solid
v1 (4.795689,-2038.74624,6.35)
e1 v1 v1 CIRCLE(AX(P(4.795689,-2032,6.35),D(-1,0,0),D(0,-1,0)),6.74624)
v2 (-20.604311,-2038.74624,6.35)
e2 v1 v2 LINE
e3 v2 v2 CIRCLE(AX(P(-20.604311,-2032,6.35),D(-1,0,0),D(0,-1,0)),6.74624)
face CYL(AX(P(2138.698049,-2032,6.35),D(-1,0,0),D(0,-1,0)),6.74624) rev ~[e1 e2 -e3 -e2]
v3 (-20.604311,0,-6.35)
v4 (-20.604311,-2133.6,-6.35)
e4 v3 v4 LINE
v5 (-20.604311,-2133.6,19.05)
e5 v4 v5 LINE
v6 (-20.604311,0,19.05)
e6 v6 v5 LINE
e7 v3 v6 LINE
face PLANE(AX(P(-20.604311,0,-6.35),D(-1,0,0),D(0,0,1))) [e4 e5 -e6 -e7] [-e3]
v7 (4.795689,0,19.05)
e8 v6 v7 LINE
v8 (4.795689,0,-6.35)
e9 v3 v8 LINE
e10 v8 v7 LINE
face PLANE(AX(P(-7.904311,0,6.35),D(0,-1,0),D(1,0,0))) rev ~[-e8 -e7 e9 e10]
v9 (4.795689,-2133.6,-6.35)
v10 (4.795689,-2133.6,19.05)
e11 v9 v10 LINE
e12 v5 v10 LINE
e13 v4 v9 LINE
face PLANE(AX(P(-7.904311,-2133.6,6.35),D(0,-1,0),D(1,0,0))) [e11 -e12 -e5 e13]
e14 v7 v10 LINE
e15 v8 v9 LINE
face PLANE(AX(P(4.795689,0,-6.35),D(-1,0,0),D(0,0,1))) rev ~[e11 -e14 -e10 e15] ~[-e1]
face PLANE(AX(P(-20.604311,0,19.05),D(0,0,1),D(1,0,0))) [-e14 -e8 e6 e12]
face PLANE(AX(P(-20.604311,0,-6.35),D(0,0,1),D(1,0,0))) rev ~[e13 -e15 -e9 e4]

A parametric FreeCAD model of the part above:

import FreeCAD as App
import Part
import Sketcher
from FreeCAD import Vector
Q = App.Units.Quantity


def add_polygon(sketch, points):
    """Adds a closed chain of lines whose ends are joined by coincident constraints."""
    first, n = sketch.GeometryCount, len(points)
    for a, b in zip(points, points[1:] + points[:1]):
        sketch.addGeometry(Part.LineSegment(App.Vector(*a, 0), App.Vector(*b, 0)), False)
    for i in range(n):
        sketch.addConstraint(Sketcher.Constraint("Coincident", first + i, 2, first + (i + 1) % n, 1))

doc = App.newDocument("Part")
body = doc.addObject("PartDesign::Body", "Body")

# Sketch on XZ plane
sketch1 = body.newObject("Sketcher::SketchObject", "Sketch")
sketch1.AttachmentSupport = (doc.getObject("XZ_Plane"), [""])
sketch1.MapMode = "FlatFace"
add_polygon(sketch1, [(-21, 19), (-21, -6), (5, -6), (5, 19)])  # lines 0-3
sketch1.addConstraint(Sketcher.Constraint("Vertical", 0))
sketch1.addConstraint(Sketcher.Constraint("Horizontal", 1))
sketch1.addConstraint(Sketcher.Constraint("Vertical", 2))
sketch1.addConstraint(Sketcher.Constraint("Horizontal", 3))
sketch1.addConstraint(Sketcher.Constraint("Equal", 3, 0))
sketch1.addConstraint(Sketcher.Constraint("DistanceX", 1, 1, 1, 2, Q("1 in")))
sketch1.addConstraint(Sketcher.Constraint("DistanceY", 0, 2, -1, 1, Q("0.25 in")))
sketch1.addConstraint(Sketcher.Constraint("DistanceX", 0, 2, -1, 1, 20.604311))
pad1 = body.newObject("PartDesign::Pad", "Pad")
pad1.Profile = sketch1
pad1.Length = Q("84 in")

# Sketch on YZ plane
sketch2 = body.newObject("Sketcher::SketchObject", "Sketch001")
sketch2.AttachmentSupport = (doc.getObject("YZ_Plane"), [""])
sketch2.MapMode = "FlatFace"
sketch2.AttachmentOffset = App.Placement(Vector(0, 0, 4.795689), App.Rotation())
sketch2.addGeometry(Part.Circle(Vector(-2032, 6, 0), Vector(0, 0, 1), 7), False)
sketch2.addConstraint(Sketcher.Constraint("DistanceX", 0, 3, -1, 1, Q("80 in")))
sketch2.addConstraint(Sketcher.Constraint("Diameter", 0, Q("0.5312 in")))
sketch2.addConstraint(Sketcher.Constraint("DistanceY", -1, 1, 0, 3, Q("0.25 in")))
doc.recompute()
hole = body.newObject("PartDesign::Hole", "Hole")
hole.Profile = sketch2
hole.ThreadType = "None"
hole.Diameter = Q("0.5312 in")
hole.DepthType = "ThroughAll"

doc.recompute()
